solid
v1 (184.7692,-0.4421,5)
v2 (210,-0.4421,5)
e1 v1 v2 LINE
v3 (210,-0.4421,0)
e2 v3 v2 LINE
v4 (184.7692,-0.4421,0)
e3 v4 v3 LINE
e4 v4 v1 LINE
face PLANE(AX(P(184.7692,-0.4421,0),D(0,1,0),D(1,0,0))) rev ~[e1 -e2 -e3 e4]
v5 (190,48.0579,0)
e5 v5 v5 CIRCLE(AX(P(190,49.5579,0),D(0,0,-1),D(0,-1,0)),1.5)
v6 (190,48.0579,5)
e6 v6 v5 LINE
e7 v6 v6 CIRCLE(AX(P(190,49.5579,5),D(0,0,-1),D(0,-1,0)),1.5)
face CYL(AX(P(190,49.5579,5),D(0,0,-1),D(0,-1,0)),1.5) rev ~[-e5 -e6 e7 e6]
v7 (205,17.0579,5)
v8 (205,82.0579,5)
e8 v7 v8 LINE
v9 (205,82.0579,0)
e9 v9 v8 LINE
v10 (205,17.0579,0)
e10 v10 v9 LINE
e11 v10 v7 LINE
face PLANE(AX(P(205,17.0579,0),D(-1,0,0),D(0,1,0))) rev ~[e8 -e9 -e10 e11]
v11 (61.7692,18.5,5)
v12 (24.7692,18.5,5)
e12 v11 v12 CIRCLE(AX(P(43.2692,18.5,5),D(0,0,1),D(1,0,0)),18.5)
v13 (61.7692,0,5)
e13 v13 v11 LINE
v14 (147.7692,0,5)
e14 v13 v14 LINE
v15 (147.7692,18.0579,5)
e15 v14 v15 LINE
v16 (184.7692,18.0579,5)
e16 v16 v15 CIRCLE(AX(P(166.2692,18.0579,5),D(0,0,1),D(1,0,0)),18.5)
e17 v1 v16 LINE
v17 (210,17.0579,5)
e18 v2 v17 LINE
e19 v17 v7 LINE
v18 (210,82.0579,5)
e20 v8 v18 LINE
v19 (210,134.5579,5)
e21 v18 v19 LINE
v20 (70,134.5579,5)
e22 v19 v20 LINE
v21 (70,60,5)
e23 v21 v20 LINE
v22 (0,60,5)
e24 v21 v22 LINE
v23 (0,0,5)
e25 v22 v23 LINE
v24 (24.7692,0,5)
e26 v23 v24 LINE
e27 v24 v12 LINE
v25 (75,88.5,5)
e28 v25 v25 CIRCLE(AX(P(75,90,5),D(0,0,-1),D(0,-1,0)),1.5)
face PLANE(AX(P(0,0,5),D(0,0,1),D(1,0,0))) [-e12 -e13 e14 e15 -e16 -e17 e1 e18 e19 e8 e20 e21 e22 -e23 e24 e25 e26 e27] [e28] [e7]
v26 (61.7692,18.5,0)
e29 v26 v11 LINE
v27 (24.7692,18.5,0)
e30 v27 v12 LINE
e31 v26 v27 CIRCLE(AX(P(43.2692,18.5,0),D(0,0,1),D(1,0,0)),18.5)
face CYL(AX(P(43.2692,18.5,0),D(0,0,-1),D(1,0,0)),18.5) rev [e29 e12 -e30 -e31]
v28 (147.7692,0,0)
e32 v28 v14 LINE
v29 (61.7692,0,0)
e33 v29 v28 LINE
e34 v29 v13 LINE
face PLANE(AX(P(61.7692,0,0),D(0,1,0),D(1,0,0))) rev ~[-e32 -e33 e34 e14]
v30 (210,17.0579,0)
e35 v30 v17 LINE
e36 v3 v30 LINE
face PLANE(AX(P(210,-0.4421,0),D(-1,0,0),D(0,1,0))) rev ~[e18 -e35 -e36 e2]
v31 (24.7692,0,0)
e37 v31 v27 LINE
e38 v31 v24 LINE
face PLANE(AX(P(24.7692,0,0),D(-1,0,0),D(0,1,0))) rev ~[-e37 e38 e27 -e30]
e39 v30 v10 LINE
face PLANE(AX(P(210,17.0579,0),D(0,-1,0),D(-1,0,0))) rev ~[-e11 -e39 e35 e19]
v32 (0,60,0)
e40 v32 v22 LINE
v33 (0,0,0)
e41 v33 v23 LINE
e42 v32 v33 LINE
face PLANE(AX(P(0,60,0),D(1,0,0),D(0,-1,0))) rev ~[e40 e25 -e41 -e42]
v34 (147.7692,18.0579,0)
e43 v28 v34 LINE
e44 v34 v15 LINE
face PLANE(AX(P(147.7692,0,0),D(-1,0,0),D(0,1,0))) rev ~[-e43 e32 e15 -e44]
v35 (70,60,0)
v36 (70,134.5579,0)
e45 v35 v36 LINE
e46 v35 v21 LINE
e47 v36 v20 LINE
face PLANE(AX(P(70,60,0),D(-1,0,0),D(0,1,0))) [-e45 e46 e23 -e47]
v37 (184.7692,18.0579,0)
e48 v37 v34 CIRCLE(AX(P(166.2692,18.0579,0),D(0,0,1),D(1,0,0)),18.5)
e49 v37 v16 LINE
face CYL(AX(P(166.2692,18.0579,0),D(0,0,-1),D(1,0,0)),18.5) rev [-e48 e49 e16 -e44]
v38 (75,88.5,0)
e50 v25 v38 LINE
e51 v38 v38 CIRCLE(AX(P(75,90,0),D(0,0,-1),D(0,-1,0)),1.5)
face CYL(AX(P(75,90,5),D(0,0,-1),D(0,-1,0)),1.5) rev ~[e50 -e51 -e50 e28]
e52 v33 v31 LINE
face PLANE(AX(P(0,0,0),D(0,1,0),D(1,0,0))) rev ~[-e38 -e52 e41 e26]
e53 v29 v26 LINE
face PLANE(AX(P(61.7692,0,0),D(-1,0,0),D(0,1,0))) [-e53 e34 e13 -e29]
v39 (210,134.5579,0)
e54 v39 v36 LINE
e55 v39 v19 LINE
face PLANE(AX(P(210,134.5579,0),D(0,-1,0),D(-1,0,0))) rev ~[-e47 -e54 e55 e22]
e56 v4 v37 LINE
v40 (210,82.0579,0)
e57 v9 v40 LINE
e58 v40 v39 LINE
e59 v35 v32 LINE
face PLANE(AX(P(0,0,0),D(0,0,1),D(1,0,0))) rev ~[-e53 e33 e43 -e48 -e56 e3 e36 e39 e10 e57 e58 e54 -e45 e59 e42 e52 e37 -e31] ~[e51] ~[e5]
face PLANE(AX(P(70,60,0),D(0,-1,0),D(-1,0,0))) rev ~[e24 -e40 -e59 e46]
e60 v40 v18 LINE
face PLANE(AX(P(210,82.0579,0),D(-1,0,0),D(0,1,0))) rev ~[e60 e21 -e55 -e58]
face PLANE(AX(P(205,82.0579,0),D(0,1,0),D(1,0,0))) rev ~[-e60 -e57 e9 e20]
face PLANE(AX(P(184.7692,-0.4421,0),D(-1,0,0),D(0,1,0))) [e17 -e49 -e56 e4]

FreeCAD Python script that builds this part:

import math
import FreeCAD as App
import Part
import Sketcher

V = App.Vector

doc = App.newDocument("Part")
body = doc.addObject("PartDesign::Body", "Body")

# Sketch on XY plane
sketch1 = body.newObject("Sketcher::SketchObject", "Sketch")
sketch1.AttachmentSupport = (doc.getObject("XY_Plane"), [""])
sketch1.MapMode = "FlatFace"
sketch1.addGeometry(Part.LineSegment(V(185, 0, 0), V(210, 0, 0)), False)
sketch1.addGeometry(Part.LineSegment(V(210, 0, 0), V(210, 17, 0)), False)
sketch1.addGeometry(Part.LineSegment(V(210, 17, 0), V(205, 17, 0)), False)
sketch1.addGeometry(Part.LineSegment(V(205, 17, 0), V(205, 82, 0)), False)
sketch1.addGeometry(Part.LineSegment(V(205, 82, 0), V(210, 82, 0)), False)
sketch1.addGeometry(Part.LineSegment(V(210, 82, 0), V(210, 135, 0)), False)
sketch1.addGeometry(Part.LineSegment(V(210, 135, 0), V(70, 135, 0)), False)
sketch1.addGeometry(Part.LineSegment(V(70, 135, 0), V(70, 60, 0)), False)
sketch1.addGeometry(Part.LineSegment(V(70, 60, 0), V(0, 60, 0)), False)
sketch1.addGeometry(Part.LineSegment(V(0, 60, 0), V(0, 0, 0)), False)
sketch1.addGeometry(Part.LineSegment(V(0, 0, 0), V(25, 0, 0)), False)
sketch1.addGeometry(Part.LineSegment(V(25, 0, 0), V(25, 18, 0)), False)
sketch1.addGeometry(Part.ArcOfCircle(Part.Circle(V(43, 18, 0), V(0, 0, 1), 18), math.radians(0), math.radians(180)), False)
sketch1.addGeometry(Part.LineSegment(V(62, 18, 0), V(62, 0, 0)), False)
sketch1.addGeometry(Part.LineSegment(V(62, 0, 0), V(148, 0, 0)), False)
sketch1.addGeometry(Part.LineSegment(V(148, 0, 0), V(148, 18, 0)), False)
sketch1.addGeometry(Part.ArcOfCircle(Part.Circle(V(166, 18, 0), V(0, 0, 1), 18), math.radians(0), math.radians(180)), False)
sketch1.addGeometry(Part.LineSegment(V(185, 18, 0), V(185, 0, 0)), False)
sketch1.addConstraint(Sketcher.Constraint("Coincident", 0, 2, 1, 1))
sketch1.addConstraint(Sketcher.Constraint("Coincident", 1, 2, 2, 1))
sketch1.addConstraint(Sketcher.Constraint("Coincident", 2, 2, 3, 1))
sketch1.addConstraint(Sketcher.Constraint("Coincident", 3, 2, 4, 1))
sketch1.addConstraint(Sketcher.Constraint("Coincident", 4, 2, 5, 1))
sketch1.addConstraint(Sketcher.Constraint("Coincident", 5, 2, 6, 1))
sketch1.addConstraint(Sketcher.Constraint("Coincident", 6, 2, 7, 1))
sketch1.addConstraint(Sketcher.Constraint("Coincident", 7, 2, 8, 1))
sketch1.addConstraint(Sketcher.Constraint("Coincident", 8, 2, 9, 1))
sketch1.addConstraint(Sketcher.Constraint("Coincident", 9, 2, 10, 1))
sketch1.addConstraint(Sketcher.Constraint("Coincident", 10, 2, 11, 1))
sketch1.addConstraint(Sketcher.Constraint("Tangent", 11, 2, 12, 2))
sketch1.addConstraint(Sketcher.Constraint("Tangent", 12, 1, 13, 1))
sketch1.addConstraint(Sketcher.Constraint("Coincident", 13, 2, 14, 1))
sketch1.addConstraint(Sketcher.Constraint("Coincident", 14, 2, 15, 1))
sketch1.addConstraint(Sketcher.Constraint("Tangent", 15, 2, 16, 2))
sketch1.addConstraint(Sketcher.Constraint("Tangent", 16, 1, 17, 1))
sketch1.addConstraint(Sketcher.Constraint("Coincident", 17, 2, 0, 1))
sketch1.addConstraint(Sketcher.Constraint("Horizontal", 0))
sketch1.addConstraint(Sketcher.Constraint("Vertical", 1))
sketch1.addConstraint(Sketcher.Constraint("Horizontal", 2))
sketch1.addConstraint(Sketcher.Constraint("Vertical", 3))
sketch1.addConstraint(Sketcher.Constraint("Horizontal", 4))
sketch1.addConstraint(Sketcher.Constraint("Vertical", 5))
sketch1.addConstraint(Sketcher.Constraint("Horizontal", 6))
sketch1.addConstraint(Sketcher.Constraint("Vertical", 7))
sketch1.addConstraint(Sketcher.Constraint("Horizontal", 8))
sketch1.addConstraint(Sketcher.Constraint("Vertical", 9))
sketch1.addConstraint(Sketcher.Constraint("Horizontal", 10))
sketch1.addConstraint(Sketcher.Constraint("Vertical", 11))
sketch1.addConstraint(Sketcher.Constraint("Vertical", 13))
sketch1.addConstraint(Sketcher.Constraint("Horizontal", 14))
sketch1.addConstraint(Sketcher.Constraint("Vertical", 15))
sketch1.addConstraint(Sketcher.Constraint("Vertical", 17))
sketch1.addConstraint(Sketcher.Constraint("Coincident", 9, 2, -1, 1))
sketch1.addConstraint(Sketcher.Constraint("Equal", 12, 16))
sketch1.addConstraint(Sketcher.Constraint("PointOnObject", 13, 2, -1))
sketch1.addConstraint(Sketcher.Constraint("Vertical", 1, 2, 4, 2))
sketch1.addConstraint(Sketcher.Constraint("Equal", 13, 17))
sketch1.addConstraint(Sketcher.Constraint("Radius", 12, 18.5))
sketch1.addConstraint(Sketcher.Constraint("DistanceX", 2, 2, 2, 1, 5.0))
sketch1.addConstraint(Sketcher.Constraint("DistanceX", 8, 2, 8, 1, 70.0))
sketch1.addConstraint(Sketcher.Constraint("DistanceY", 3, 1, 3, 2, 65.0))
sketch1.addConstraint(Sketcher.Constraint("DistanceY", 9, 2, 9, 1, 60.0))
sketch1.addConstraint(Sketcher.Constraint("DistanceY", 5, 1, 5, 2, 52.5))
sketch1.addConstraint(Sketcher.Constraint("DistanceY", 11, 1, 11, 2, 18.5))
sketch1.addConstraint(Sketcher.Constraint("DistanceX", -1, 1, 0, 2, 210.0))
sketch1.addConstraint(Sketcher.Constraint("DistanceX", 12, 3, 16, 3, 123.0))
sketch1.addConstraint(Sketcher.Constraint("DistanceY", 1, 1, 1, 2, 17.5))
sketch1.addConstraint(Sketcher.Constraint("DistanceY", 7, 2, 7, 1, 74.558))
sketch1.addConstraint(Sketcher.Constraint("DistanceX", 0, 1, 0, 2, 25.2308))
pad1 = body.newObject("PartDesign::Pad", "Pad")
pad1.Profile = sketch1
pad1.Length = 5

# Sketch on XY plane
sketch2 = body.newObject("Sketcher::SketchObject", "Sketch001")
sketch2.AttachmentSupport = (doc.getObject("XY_Plane"), [""])
sketch2.MapMode = "FlatFace"
sketch2.AttachmentOffset = App.Placement(V(0, 0, 5), App.Rotation())
sketch2.addGeometry(Part.Circle(V(190, 49.6, 0), V(0, 0, 1), 1.5), False)
sketch2.addConstraint(Sketcher.Constraint("Diameter", 0, 3.0))
sketch2.addConstraint(Sketcher.Constraint("DistanceX", -1, 1, 0, 3, 190.0))
sketch2.addConstraint(Sketcher.Constraint("DistanceY", -1, 1, 0, 3, 49.558))
doc.recompute()
hole = body.newObject("PartDesign::Hole", "Hole")
hole.Profile = sketch2
hole.ThreadType = "None"
hole.Diameter = 3
hole.DepthType = "ThroughAll"

# Sketch on XY plane
sketch3 = body.newObject("Sketcher::SketchObject", "Sketch002")
sketch3.AttachmentSupport = (doc.getObject("XY_Plane"), [""])
sketch3.MapMode = "FlatFace"
sketch3.AttachmentOffset = App.Placement(V(0, 0, 5), App.Rotation())
sketch3.addGeometry(Part.Circle(V(75, 90, 0), V(0, 0, 1), 1.5), False)
sketch3.addConstraint(Sketcher.Constraint("Diameter", 0, 3.0))
sketch3.addConstraint(Sketcher.Constraint("DistanceX", -1, 1, 0, 3, 75.0))
sketch3.addConstraint(Sketcher.Constraint("DistanceY", -1, 1, 0, 3, 90.0))
doc.recompute()
hole2 = body.newObject("PartDesign::Hole", "Hole001")
hole2.Profile = sketch3
hole2.ThreadType = "None"
hole2.Diameter = 3
hole2.DepthType = "ThroughAll"

doc.recompute()
